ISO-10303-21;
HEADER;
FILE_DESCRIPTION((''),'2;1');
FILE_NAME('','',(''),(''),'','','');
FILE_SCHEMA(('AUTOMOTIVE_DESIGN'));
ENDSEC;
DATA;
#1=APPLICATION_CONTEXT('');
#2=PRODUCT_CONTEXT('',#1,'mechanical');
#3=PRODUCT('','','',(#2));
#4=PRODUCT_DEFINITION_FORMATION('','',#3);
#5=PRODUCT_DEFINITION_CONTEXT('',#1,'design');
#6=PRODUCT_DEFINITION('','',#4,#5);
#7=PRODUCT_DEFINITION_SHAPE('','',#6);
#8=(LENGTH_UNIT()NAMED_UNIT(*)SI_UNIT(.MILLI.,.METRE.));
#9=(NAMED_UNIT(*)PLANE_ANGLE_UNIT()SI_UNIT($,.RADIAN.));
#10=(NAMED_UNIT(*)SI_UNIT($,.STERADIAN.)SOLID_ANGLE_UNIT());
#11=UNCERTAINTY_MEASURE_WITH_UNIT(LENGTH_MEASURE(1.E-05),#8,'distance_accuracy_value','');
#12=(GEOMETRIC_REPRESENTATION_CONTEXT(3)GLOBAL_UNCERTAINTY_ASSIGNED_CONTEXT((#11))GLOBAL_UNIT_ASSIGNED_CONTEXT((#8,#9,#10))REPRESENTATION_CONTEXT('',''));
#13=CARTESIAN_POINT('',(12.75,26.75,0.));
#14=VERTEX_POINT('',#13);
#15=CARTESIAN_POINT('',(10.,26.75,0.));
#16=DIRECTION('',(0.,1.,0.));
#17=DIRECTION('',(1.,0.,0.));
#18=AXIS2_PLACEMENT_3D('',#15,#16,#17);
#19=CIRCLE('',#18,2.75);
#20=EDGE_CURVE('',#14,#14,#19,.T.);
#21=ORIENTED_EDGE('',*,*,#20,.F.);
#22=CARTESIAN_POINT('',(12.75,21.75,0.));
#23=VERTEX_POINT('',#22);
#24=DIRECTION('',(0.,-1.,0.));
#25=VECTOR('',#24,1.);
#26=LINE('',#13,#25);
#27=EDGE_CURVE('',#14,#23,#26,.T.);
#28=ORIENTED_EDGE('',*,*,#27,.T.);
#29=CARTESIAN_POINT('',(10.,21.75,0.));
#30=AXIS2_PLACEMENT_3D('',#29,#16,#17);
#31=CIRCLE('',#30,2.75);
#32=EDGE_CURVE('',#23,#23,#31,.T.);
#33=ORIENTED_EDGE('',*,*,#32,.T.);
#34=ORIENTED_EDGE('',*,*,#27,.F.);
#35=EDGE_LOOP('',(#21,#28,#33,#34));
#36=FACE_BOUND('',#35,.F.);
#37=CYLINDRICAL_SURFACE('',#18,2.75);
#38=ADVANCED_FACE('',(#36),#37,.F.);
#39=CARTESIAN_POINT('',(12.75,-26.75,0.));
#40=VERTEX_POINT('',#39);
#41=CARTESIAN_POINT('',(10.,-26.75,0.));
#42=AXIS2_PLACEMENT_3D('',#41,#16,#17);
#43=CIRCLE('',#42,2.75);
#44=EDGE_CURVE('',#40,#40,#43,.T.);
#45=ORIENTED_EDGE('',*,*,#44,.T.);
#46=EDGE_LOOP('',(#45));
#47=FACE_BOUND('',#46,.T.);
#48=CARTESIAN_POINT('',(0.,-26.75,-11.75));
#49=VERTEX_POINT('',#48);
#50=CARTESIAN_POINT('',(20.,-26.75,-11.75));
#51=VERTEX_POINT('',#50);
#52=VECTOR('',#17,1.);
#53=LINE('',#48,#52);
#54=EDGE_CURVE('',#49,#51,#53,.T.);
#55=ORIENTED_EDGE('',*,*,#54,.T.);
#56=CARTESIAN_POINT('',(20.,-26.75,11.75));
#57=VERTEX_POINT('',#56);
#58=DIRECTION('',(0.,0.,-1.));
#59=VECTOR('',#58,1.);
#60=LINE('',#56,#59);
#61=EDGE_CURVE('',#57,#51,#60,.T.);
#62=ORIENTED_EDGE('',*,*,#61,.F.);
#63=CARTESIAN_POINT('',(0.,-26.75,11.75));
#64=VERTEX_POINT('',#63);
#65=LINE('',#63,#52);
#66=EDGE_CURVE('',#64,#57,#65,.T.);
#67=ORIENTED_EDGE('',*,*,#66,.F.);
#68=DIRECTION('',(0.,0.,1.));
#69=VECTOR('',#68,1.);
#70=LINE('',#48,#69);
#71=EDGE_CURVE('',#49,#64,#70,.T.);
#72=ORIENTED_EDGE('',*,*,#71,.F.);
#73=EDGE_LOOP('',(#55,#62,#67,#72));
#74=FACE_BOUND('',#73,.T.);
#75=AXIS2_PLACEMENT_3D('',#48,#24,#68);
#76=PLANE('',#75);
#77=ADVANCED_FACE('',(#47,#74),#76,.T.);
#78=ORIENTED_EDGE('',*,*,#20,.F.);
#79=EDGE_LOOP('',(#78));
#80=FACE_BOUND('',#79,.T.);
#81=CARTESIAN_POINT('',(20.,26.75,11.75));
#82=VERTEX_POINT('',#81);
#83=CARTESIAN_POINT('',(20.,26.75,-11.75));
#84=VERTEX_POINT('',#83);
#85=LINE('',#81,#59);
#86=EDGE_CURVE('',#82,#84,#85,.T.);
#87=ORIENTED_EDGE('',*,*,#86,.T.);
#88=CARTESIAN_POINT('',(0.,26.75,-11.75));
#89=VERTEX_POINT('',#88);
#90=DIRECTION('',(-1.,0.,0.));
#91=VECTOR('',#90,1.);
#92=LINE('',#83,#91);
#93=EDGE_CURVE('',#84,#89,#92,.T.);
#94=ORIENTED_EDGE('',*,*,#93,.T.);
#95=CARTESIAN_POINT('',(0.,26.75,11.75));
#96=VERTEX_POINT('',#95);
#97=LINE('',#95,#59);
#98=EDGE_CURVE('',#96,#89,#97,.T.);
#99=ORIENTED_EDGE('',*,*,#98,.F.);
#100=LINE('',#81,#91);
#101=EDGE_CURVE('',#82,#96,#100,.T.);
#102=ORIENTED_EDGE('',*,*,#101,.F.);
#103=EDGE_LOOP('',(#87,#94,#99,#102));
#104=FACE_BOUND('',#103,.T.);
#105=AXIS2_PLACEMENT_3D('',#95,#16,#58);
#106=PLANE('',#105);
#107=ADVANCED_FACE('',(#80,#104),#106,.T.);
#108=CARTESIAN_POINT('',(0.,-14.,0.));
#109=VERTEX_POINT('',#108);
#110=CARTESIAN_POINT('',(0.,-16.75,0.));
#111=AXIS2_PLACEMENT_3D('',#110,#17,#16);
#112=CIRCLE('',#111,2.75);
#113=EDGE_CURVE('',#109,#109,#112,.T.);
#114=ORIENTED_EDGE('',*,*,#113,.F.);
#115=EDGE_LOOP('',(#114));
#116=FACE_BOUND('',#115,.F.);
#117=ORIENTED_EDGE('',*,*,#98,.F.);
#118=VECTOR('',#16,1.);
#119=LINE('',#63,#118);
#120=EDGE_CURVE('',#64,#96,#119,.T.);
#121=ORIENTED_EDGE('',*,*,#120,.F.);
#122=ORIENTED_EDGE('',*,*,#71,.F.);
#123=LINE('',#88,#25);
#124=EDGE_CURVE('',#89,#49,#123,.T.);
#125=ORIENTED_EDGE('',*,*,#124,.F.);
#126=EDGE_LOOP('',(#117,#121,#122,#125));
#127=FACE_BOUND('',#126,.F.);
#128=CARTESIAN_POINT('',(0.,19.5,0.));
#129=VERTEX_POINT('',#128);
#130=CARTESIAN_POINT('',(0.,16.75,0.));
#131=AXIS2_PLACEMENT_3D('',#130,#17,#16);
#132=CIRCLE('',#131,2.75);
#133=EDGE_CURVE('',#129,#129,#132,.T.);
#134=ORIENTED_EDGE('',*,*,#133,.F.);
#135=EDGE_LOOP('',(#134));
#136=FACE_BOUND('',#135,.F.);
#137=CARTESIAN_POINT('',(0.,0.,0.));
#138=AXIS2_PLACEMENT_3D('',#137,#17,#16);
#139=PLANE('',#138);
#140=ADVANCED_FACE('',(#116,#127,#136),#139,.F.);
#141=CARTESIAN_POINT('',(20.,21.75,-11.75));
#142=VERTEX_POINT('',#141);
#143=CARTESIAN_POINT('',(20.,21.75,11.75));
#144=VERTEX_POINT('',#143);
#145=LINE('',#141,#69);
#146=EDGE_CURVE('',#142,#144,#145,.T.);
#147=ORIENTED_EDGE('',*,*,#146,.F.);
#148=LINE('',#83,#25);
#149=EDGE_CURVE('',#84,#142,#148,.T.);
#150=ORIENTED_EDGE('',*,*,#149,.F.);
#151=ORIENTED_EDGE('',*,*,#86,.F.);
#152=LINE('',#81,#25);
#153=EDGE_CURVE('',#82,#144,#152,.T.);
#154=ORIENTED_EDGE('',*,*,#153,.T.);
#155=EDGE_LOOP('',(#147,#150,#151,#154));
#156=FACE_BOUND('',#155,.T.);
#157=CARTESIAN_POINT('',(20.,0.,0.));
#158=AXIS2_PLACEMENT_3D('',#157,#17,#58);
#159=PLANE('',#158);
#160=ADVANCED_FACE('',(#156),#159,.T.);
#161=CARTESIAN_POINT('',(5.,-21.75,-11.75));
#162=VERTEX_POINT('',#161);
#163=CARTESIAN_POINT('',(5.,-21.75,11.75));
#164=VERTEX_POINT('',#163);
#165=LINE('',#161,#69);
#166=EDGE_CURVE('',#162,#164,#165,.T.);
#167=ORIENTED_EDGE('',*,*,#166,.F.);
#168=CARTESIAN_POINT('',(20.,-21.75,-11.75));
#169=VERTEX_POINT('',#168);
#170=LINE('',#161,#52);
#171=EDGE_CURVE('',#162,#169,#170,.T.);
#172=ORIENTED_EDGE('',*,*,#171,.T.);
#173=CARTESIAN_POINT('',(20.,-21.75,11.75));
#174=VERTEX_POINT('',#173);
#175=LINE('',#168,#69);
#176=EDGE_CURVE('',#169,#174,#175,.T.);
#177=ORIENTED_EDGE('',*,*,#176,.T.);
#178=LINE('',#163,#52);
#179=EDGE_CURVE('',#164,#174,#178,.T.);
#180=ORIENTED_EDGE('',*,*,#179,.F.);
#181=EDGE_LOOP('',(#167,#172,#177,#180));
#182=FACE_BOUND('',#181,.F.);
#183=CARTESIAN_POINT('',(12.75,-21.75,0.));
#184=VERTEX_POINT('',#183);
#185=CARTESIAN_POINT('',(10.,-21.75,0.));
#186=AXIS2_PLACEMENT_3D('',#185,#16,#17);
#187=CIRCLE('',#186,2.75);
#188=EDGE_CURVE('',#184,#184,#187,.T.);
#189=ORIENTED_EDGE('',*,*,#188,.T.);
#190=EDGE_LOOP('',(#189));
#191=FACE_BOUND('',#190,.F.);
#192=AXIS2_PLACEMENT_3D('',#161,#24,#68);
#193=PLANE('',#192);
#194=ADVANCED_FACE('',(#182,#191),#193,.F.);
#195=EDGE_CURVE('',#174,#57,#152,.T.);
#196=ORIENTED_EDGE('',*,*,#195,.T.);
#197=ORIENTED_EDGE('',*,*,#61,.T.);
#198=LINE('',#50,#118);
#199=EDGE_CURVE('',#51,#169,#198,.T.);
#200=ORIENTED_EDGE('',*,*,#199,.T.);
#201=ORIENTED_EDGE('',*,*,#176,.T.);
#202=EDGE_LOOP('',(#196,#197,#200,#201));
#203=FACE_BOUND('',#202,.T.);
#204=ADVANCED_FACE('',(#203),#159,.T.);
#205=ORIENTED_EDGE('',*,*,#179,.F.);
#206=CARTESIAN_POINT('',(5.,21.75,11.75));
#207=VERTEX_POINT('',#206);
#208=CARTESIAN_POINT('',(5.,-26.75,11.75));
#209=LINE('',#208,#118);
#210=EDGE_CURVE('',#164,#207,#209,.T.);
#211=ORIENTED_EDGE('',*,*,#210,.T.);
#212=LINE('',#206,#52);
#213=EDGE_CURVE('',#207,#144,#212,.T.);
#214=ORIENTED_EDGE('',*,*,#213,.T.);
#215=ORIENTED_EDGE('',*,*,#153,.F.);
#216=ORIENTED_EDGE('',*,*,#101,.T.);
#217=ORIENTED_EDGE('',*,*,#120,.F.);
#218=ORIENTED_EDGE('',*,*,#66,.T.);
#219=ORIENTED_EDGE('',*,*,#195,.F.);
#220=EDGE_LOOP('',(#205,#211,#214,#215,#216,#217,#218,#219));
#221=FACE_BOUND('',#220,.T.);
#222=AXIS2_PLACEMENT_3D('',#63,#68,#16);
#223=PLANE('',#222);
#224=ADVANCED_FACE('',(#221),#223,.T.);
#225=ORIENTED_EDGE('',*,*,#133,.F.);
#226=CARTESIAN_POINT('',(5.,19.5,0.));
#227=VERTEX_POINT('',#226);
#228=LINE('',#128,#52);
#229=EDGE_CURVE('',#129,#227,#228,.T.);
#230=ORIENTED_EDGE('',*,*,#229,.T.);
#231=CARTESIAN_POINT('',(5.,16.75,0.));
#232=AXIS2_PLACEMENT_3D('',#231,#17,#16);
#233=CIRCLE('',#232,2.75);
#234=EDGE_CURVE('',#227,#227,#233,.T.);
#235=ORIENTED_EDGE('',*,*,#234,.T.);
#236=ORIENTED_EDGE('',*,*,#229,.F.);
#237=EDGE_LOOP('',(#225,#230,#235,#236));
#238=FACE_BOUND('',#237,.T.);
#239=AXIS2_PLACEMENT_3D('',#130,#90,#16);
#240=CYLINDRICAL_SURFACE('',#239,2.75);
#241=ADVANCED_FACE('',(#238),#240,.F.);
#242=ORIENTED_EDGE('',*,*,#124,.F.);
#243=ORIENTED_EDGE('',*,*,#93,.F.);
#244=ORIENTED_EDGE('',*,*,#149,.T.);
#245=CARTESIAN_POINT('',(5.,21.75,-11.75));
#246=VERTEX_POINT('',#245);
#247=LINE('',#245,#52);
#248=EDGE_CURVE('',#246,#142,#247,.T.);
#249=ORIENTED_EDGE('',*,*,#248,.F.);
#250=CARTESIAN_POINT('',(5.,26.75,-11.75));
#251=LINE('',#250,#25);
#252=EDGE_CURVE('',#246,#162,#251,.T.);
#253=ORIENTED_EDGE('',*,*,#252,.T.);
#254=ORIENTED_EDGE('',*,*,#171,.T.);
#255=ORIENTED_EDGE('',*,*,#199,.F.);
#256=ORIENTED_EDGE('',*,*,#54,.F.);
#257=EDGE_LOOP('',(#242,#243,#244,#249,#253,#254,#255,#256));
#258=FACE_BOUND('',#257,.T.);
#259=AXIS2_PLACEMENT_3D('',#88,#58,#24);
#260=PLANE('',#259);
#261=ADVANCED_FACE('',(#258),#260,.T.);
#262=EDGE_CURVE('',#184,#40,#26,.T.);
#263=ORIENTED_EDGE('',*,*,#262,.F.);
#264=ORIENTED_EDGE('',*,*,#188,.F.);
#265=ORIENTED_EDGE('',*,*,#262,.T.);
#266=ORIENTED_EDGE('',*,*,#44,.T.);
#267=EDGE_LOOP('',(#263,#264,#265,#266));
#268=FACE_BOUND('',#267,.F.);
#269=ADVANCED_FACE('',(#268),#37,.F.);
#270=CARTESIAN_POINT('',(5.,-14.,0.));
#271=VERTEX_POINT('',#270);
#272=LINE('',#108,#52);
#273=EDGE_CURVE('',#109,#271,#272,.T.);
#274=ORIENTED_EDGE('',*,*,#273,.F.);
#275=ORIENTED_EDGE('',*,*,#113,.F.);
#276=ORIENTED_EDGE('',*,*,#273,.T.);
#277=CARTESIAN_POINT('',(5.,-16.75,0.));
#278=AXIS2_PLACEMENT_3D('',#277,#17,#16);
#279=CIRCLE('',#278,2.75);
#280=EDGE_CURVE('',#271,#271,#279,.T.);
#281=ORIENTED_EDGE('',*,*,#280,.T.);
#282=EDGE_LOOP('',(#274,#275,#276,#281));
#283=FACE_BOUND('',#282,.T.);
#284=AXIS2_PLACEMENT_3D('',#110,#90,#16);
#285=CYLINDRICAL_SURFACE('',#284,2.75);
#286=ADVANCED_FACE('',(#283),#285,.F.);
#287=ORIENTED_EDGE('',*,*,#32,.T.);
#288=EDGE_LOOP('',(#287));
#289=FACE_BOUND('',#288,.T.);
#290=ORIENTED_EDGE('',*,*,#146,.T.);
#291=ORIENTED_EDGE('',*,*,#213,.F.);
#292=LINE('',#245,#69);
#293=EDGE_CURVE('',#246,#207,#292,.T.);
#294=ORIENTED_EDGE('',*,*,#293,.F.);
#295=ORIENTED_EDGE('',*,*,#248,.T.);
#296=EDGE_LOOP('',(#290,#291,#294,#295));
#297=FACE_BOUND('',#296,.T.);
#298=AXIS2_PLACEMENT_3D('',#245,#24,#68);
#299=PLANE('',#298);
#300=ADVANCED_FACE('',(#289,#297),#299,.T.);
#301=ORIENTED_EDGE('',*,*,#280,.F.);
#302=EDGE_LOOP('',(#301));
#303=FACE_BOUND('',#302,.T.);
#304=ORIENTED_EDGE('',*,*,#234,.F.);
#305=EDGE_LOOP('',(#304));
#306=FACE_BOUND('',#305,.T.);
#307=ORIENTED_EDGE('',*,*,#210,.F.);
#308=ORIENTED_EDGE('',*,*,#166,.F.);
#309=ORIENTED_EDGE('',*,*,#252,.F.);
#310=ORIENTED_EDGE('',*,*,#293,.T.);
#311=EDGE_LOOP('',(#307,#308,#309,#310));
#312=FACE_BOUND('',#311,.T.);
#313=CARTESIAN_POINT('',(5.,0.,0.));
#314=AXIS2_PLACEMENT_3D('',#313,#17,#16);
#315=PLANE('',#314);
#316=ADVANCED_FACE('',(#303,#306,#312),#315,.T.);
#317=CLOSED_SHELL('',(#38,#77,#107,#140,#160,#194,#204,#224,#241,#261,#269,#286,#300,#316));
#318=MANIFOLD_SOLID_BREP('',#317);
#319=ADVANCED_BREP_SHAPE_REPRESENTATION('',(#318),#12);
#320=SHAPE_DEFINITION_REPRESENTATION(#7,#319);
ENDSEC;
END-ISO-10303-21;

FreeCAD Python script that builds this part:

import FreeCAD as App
import Part
import Sketcher


def add_polygon(sketch, points):
    """Adds a closed chain of lines whose ends are joined by coincident constraints."""
    first, n = sketch.GeometryCount, len(points)
    for a, b in zip(points, points[1:] + points[:1]):
        sketch.addGeometry(Part.LineSegment(App.Vector(*a, 0), App.Vector(*b, 0)), False)
    for i in range(n):
        sketch.addConstraint(Sketcher.Constraint("Coincident", first + i, 2, first + (i + 1) % n, 1))

doc = App.newDocument("Part")
body = doc.addObject("PartDesign::Body", "Body")

# Sketch on YZ plane
sketch1 = body.newObject("Sketcher::SketchObject", "Sketch")
sketch1.AttachmentSupport = (doc.getObject("YZ_Plane"), [""])
sketch1.MapMode = "FlatFace"
add_polygon(sketch1, [(26.75, 11.75), (-26.75, 11.75), (-26.75, -11.75), (26.75, -11.75)])  # lines 0-3
sketch1.addGeometry(Part.Circle(App.Vector(-16.75, 0, 0), App.Vector(0, 0, 1), 2.75), False)  # 4
sketch1.addGeometry(Part.Circle(App.Vector(16.75, 0, 0), App.Vector(0, 0, 1), 2.75), False)  # 5
sketch1.addConstraint(Sketcher.Constraint("Horizontal", 0))
sketch1.addConstraint(Sketcher.Constraint("Vertical", 1))
sketch1.addConstraint(Sketcher.Constraint("Horizontal", 2))
sketch1.addConstraint(Sketcher.Constraint("Vertical", 3))
sketch1.addConstraint(Sketcher.Constraint("Equal", 4, 5))
sketch1.addConstraint(Sketcher.Constraint("Symmetric", 4, 3, 5, 3, -1, 1))
sketch1.addConstraint(Sketcher.Constraint("Symmetric", 0, 2, 2, 2, -1, 1))
sketch1.addConstraint(Sketcher.Constraint("PointOnObject", 4, 3, -1))
sketch1.addConstraint(Sketcher.Constraint("Diameter", 4, 5.5))
sketch1.addConstraint(Sketcher.Constraint("DistanceX", 0, 2, 0, 1, 53.5))
sketch1.addConstraint(Sketcher.Constraint("DistanceY", 1, 2, 1, 1, 23.5))
sketch1.addConstraint(Sketcher.Constraint("DistanceX", 0, 2, 4, 3, 10.0))
pad1 = body.newObject("PartDesign::Pad", "Pad")
pad1.Profile = sketch1
pad1.Length = 5

# Sketch on YZ plane
sketch2 = body.newObject("Sketcher::SketchObject", "Sketch001")
sketch2.AttachmentSupport = (doc.getObject("YZ_Plane"), [""])
sketch2.MapMode = "FlatFace"
sketch2.AttachmentOffset = App.Placement(App.Vector(0, 0, 5), App.Rotation())
add_polygon(sketch2, [(26.75, -11.75), (26.75, 11.75), (21.75, 11.75), (21.75, -11.75)])  # lines 0-3
add_polygon(sketch2, [(-21.75, -11.75), (-21.75, 11.75), (-26.75, 11.75), (-26.75, -11.75)])  # lines 4-7
sketch2.addConstraint(Sketcher.Constraint("Vertical", 0))
sketch2.addConstraint(Sketcher.Constraint("Horizontal", 1))
sketch2.addConstraint(Sketcher.Constraint("Vertical", 2))
sketch2.addConstraint(Sketcher.Constraint("Horizontal", 3))
sketch2.addConstraint(Sketcher.Constraint("Vertical", 4))
sketch2.addConstraint(Sketcher.Constraint("Horizontal", 5))
sketch2.addConstraint(Sketcher.Constraint("Vertical", 6))
sketch2.addConstraint(Sketcher.Constraint("Horizontal", 7))
sketch2.addConstraint(Sketcher.Constraint("Symmetric", 2, 2, 4, 2, -1, 1))
sketch2.addConstraint(Sketcher.Constraint("Symmetric", 0, 2, 6, 2, -1, 1))
sketch2.addConstraint(Sketcher.Constraint("Horizontal", 1, 2, 4, 2))
sketch2.addConstraint(Sketcher.Constraint("DistanceX", 1, 2, 1, 1, 5.0))
sketch2.addConstraint(Sketcher.Constraint("DistanceY", 0, 1, 0, 2, 23.5))
sketch2.addConstraint(Sketcher.Constraint("DistanceX", 4, 2, 1, 2, 43.5))
pad2 = body.newObject("PartDesign::Pad", "Pad001")
pad2.Profile = sketch2
pad2.Length = 15

# Sketch on XZ plane
sketch3 = body.newObject("Sketcher::SketchObject", "Sketch002")
sketch3.AttachmentSupport = (doc.getObject("XZ_Plane"), [""])
sketch3.MapMode = "FlatFace"
sketch3.AttachmentOffset = App.Placement(App.Vector(0, 0, -26.75), App.Rotation())
sketch3.addGeometry(Part.Circle(App.Vector(10, 0, 0), App.Vector(0, 0, 1), 2.75), False)
sketch3.addConstraint(Sketcher.Constraint("PointOnObject", 0, 3, -1))
sketch3.addConstraint(Sketcher.Constraint("Diameter", 0, 5.5))
sketch3.addConstraint(Sketcher.Constraint("DistanceX", -1, 1, 0, 3, 10.0))
pocket1 = body.newObject("PartDesign::Pocket", "Pocket")
pocket1.Profile = sketch3
pocket1.Length = 53.5
pocket1.Reversed = True

doc.recompute()
